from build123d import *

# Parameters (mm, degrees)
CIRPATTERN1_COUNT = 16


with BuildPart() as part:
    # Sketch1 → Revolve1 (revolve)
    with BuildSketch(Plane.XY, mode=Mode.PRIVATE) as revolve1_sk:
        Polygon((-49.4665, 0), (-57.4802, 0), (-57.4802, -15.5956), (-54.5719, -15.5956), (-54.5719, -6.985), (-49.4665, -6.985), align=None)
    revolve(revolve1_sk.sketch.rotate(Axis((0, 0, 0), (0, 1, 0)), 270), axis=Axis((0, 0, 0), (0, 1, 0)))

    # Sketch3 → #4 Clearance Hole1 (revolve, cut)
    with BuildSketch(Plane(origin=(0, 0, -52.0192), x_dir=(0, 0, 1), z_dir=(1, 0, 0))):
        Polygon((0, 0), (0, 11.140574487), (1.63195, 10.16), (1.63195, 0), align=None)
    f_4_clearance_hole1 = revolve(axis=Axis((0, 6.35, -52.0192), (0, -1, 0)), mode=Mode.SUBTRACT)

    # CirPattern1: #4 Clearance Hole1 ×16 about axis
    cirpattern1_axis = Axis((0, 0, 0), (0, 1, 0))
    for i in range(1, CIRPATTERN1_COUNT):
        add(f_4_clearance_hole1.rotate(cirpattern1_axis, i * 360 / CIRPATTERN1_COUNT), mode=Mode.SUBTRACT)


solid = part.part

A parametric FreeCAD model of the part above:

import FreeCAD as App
import Part
import Sketcher
Q = App.Units.Quantity


def add_polygon(sketch, points):
    """Adds a closed chain of lines whose ends are joined by coincident constraints."""
    first, n = sketch.GeometryCount, len(points)
    for a, b in zip(points, points[1:] + points[:1]):
        sketch.addGeometry(Part.LineSegment(App.Vector(*a, 0), App.Vector(*b, 0)), False)
    for i in range(n):
        sketch.addConstraint(Sketcher.Constraint("Coincident", first + i, 2, first + (i + 1) % n, 1))

doc = App.newDocument("Part")
body = doc.addObject("PartDesign::Body", "Body")

# Sketch on XY plane
sketch1 = body.newObject("Sketcher::SketchObject", "Sketch")
sketch1.AttachmentSupport = (doc.getObject("XY_Plane"), [""])
sketch1.MapMode = "FlatFace"
add_polygon(sketch1, [(-49.4665, 0), (-57.4802, 0), (-57.4802, -15.5956), (-54.5719, -15.5956), (-54.5719, -6.985), (-49.4665, -6.985)])  # lines 0-5
sketch1.addConstraint([
    Sketcher.Constraint("Horizontal", 0),
    Sketcher.Constraint("Vertical", 1),
    Sketcher.Constraint("Horizontal", 2),
    Sketcher.Constraint("Vertical", 3),
    Sketcher.Constraint("Horizontal", 4),
    Sketcher.Constraint("Vertical", 5),
    Sketcher.Constraint("PointOnObject", 0, 2, -1),
    Sketcher.Constraint("DistanceX", 4, 1, 4, 2, Q("0.201 in")),
    Sketcher.Constraint("DistanceY", 1, 2, 1, 1, Q("0.614 in")),
    Sketcher.Constraint("DistanceY", 3, 1, 3, 2, Q("0.339 in")),
    Sketcher.Constraint("DistanceX", 0, 2, 0, 1, Q("0.3155 in")),
    Sketcher.Constraint("DistanceX", 0, 2, -1, 1, Q("2.263 in")),
])
revolution = body.newObject("PartDesign::Revolution", "Revolution")
revolution.Profile = sketch1
revolution.ReferenceAxis = (sketch1, ["V_Axis"])
revolution.Angle = 360

# Sketch on YZ plane
sketch2 = body.newObject("Sketcher::SketchObject", "Sketch001")
sketch2.AttachmentSupport = (doc.getObject("YZ_Plane"), [""])
sketch2.MapMode = "FlatFace"
add_polygon(sketch2, [(-11.140574, -52.0192), (0, -52.0192), (0, -50.38725), (-10.16, -50.38725)])  # lines 0-3
sketch2.addGeometry(Part.LineSegment(App.Vector(0, -52.0192, 0), App.Vector(-11.140574, -52.0192, 0)), True)  # axis
sketch2.addConstraint([
    Sketcher.Constraint("Horizontal", 0),
    Sketcher.Constraint("Vertical", 1),
    Sketcher.Constraint("Horizontal", 2),
    Sketcher.Constraint("Horizontal", 4),
    Sketcher.Constraint("Coincident", 4, 1, 0, 2),
    Sketcher.Constraint("PointOnObject", 0, 2, -2),
    Sketcher.Constraint("Equal", 0, 4),
    Sketcher.Constraint("DistanceX", 2, 2, 2, 1, Q("0.4 in")),
    Sketcher.Constraint("Angle", 3, Q("-121 deg")),
    Sketcher.Constraint("DistanceY", 0, 2, -1, 1, Q("2.048 in")),
    Sketcher.Constraint("DistanceY", 1, 1, 1, 2, Q("1.63195 mm")),
])
groove = body.newObject("PartDesign::Groove", "Groove")
groove.Profile = sketch2
groove.ReferenceAxis = (sketch2, ["Axis0"])
groove.Angle = 360
doc.recompute()

polarpattern = body.newObject("PartDesign::PolarPattern", "PolarPattern")
polarpattern.Originals = [groove]
polarpattern.Axis = (doc.getObject("Y_Axis"), [""])
polarpattern.Angle = 360
polarpattern.Occurrences = 16
body.Tip = polarpattern

doc.recompute()
